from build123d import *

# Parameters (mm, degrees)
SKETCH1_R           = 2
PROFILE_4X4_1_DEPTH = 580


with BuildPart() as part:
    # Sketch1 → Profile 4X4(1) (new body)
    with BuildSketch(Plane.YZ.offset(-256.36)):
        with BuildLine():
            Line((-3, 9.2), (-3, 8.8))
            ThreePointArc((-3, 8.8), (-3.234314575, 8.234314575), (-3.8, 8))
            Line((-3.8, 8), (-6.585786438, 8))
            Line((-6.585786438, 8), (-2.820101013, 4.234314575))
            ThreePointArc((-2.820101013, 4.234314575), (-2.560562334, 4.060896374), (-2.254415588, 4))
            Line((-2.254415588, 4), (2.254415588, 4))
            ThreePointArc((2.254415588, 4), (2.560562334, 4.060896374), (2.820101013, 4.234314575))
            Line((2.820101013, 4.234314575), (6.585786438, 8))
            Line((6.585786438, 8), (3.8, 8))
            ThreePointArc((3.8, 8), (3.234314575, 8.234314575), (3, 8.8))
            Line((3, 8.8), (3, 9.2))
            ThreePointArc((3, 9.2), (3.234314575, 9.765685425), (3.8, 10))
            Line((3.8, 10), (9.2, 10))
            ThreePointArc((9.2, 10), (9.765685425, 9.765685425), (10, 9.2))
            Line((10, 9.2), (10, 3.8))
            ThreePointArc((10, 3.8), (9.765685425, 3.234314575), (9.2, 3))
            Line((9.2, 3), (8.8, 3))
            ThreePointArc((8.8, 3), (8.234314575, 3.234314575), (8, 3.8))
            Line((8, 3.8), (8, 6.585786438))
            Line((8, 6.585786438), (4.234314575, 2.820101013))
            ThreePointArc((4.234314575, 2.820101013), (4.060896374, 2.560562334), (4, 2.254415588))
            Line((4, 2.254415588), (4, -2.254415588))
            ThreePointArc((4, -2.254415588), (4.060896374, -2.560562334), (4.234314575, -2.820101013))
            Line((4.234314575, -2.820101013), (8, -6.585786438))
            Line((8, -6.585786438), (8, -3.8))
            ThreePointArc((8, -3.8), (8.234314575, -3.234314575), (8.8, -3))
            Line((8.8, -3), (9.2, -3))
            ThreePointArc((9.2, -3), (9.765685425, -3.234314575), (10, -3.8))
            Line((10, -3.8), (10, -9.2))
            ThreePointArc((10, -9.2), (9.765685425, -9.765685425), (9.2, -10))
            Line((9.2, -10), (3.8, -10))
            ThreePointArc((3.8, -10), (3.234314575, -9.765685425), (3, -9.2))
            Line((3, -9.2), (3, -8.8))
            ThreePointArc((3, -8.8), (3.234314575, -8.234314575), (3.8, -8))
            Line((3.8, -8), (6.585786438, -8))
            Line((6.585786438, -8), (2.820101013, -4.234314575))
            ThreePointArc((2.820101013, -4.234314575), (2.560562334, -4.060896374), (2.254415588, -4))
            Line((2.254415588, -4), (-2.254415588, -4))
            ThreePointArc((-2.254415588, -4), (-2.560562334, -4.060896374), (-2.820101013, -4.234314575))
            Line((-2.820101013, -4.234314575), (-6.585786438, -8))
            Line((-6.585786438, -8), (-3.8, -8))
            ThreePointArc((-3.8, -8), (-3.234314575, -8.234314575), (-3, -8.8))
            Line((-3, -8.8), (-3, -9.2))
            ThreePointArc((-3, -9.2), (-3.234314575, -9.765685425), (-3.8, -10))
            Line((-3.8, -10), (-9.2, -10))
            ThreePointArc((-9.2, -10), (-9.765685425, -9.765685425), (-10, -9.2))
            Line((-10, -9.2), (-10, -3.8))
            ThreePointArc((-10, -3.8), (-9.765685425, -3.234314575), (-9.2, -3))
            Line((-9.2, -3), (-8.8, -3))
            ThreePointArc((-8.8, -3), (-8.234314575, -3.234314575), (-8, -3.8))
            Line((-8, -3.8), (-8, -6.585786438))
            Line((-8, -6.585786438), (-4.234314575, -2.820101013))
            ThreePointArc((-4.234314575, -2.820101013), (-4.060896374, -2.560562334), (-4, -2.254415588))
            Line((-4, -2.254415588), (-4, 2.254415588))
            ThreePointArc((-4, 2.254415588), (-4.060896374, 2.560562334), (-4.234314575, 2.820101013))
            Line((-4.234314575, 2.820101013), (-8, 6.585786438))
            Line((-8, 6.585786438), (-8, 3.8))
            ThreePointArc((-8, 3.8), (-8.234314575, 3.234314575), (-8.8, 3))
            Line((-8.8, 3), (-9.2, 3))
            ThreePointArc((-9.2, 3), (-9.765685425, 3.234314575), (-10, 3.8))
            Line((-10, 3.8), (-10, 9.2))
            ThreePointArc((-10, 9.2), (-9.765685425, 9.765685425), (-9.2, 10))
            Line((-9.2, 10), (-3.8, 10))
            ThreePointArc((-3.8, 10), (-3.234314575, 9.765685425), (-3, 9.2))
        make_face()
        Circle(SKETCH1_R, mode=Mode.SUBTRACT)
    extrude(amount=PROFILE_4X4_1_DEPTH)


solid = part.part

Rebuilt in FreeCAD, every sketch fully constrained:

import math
import FreeCAD as App
import Part
import Sketcher

doc = App.newDocument("Part")
body = doc.addObject("PartDesign::Body", "Body")

sketch1 = doc.addObject("Sketcher::SketchObject", "Sketch")
body.addObject(sketch1)
sketch1.AttachmentSupport = (doc.YZ_Plane, [""])
sketch1.MapMode = "FlatFace"
sketch1.AttachmentOffset = App.Placement(App.Vector(0, 0, -256.36), App.Rotation())
sketch1.addGeometry([
    Part.LineSegment(App.Vector(-3, 8.8, 0), App.Vector(-3, 9.2, 0)),
    Part.ArcOfCircle(Part.Circle(App.Vector(-3.8, 9.2, 0), App.Vector(0, 0, 1), 0.8), math.radians(0), math.radians(90)),
    Part.LineSegment(App.Vector(-3.8, 10, 0), App.Vector(-9.2, 10, 0)),
    Part.ArcOfCircle(Part.Circle(App.Vector(-9.2, 9.2, 0), App.Vector(0, 0, 1), 0.8), math.radians(90), math.radians(180)),
    Part.LineSegment(App.Vector(-10, 9.2, 0), App.Vector(-10, 3.8, 0)),
    Part.ArcOfCircle(Part.Circle(App.Vector(-9.2, 3.8, 0), App.Vector(0, 0, 1), 0.8), math.radians(180), math.radians(270)),
    Part.LineSegment(App.Vector(-9.2, 3, 0), App.Vector(-8.8, 3, 0)),
    Part.ArcOfCircle(Part.Circle(App.Vector(-8.8, 3.8, 0), App.Vector(0, 0, 1), 0.8), math.radians(-90), math.radians(0)),
    Part.LineSegment(App.Vector(-8, 3.8, 0), App.Vector(-8, 6.585786, 0)),
    Part.LineSegment(App.Vector(-8, 6.585786, 0), App.Vector(-4.234315, 2.820101, 0)),
    Part.ArcOfCircle(Part.Circle(App.Vector(-4.8, 2.254416, 0), App.Vector(0, 0, 1), 0.8), math.radians(0), math.radians(45)),
    Part.LineSegment(App.Vector(-4, 2.254416, 0), App.Vector(-4, -2.254416, 0)),
    Part.ArcOfCircle(Part.Circle(App.Vector(-4.8, -2.254416, 0), App.Vector(0, 0, 1), 0.8), math.radians(-45), math.radians(0)),
    Part.LineSegment(App.Vector(-4.234315, -2.820101, 0), App.Vector(-8, -6.585786, 0)),
    Part.LineSegment(App.Vector(-8, -6.585786, 0), App.Vector(-8, -3.8, 0)),
    Part.ArcOfCircle(Part.Circle(App.Vector(-8.8, -3.8, 0), App.Vector(0, 0, 1), 0.8), math.radians(0), math.radians(90)),
    Part.LineSegment(App.Vector(-8.8, -3, 0), App.Vector(-9.2, -3, 0)),
    Part.ArcOfCircle(Part.Circle(App.Vector(-9.2, -3.8, 0), App.Vector(0, 0, 1), 0.8), math.radians(90), math.radians(180)),
    Part.LineSegment(App.Vector(-10, -3.8, 0), App.Vector(-10, -9.2, 0)),
    Part.ArcOfCircle(Part.Circle(App.Vector(-9.2, -9.2, 0), App.Vector(0, 0, 1), 0.8), math.radians(180), math.radians(270)),
    Part.LineSegment(App.Vector(-9.2, -10, 0), App.Vector(-3.8, -10, 0)),
    Part.ArcOfCircle(Part.Circle(App.Vector(-3.8, -9.2, 0), App.Vector(0, 0, 1), 0.8), math.radians(-90), math.radians(0)),
    Part.LineSegment(App.Vector(-3, -9.2, 0), App.Vector(-3, -8.8, 0)),
    Part.ArcOfCircle(Part.Circle(App.Vector(-3.8, -8.8, 0), App.Vector(0, 0, 1), 0.8), math.radians(0), math.radians(90)),
    Part.LineSegment(App.Vector(-3.8, -8, 0), App.Vector(-6.585786, -8, 0)),
    Part.LineSegment(App.Vector(-6.585786, -8, 0), App.Vector(-2.820101, -4.234315, 0)),
    Part.ArcOfCircle(Part.Circle(App.Vector(-2.254416, -4.8, 0), App.Vector(0, 0, 1), 0.8), math.radians(90), math.radians(135)),
    Part.LineSegment(App.Vector(-2.254416, -4, 0), App.Vector(2.254416, -4, 0)),
    Part.ArcOfCircle(Part.Circle(App.Vector(2.254416, -4.8, 0), App.Vector(0, 0, 1), 0.8), math.radians(45), math.radians(90)),
    Part.LineSegment(App.Vector(2.820101, -4.234315, 0), App.Vector(6.585786, -8, 0)),
    Part.LineSegment(App.Vector(6.585786, -8, 0), App.Vector(3.8, -8, 0)),
    Part.ArcOfCircle(Part.Circle(App.Vector(3.8, -8.8, 0), App.Vector(0, 0, 1), 0.8), math.radians(90), math.radians(180)),
    Part.LineSegment(App.Vector(3, -8.8, 0), App.Vector(3, -9.2, 0)),
    Part.ArcOfCircle(Part.Circle(App.Vector(3.8, -9.2, 0), App.Vector(0, 0, 1), 0.8), math.radians(180), math.radians(270)),
    Part.LineSegment(App.Vector(3.8, -10, 0), App.Vector(9.2, -10, 0)),
    Part.ArcOfCircle(Part.Circle(App.Vector(9.2, -9.2, 0), App.Vector(0, 0, 1), 0.8), math.radians(-90), math.radians(0)),
    Part.LineSegment(App.Vector(10, -9.2, 0), App.Vector(10, -3.8, 0)),
    Part.ArcOfCircle(Part.Circle(App.Vector(9.2, -3.8, 0), App.Vector(0, 0, 1), 0.8), math.radians(0), math.radians(90)),
    Part.LineSegment(App.Vector(9.2, -3, 0), App.Vector(8.8, -3, 0)),
    Part.ArcOfCircle(Part.Circle(App.Vector(8.8, -3.8, 0), App.Vector(0, 0, 1), 0.8), math.radians(90), math.radians(180)),
    Part.LineSegment(App.Vector(8, -3.8, 0), App.Vector(8, -6.585786, 0)),
    Part.LineSegment(App.Vector(8, -6.585786, 0), App.Vector(4.234315, -2.820101, 0)),
    Part.ArcOfCircle(Part.Circle(App.Vector(4.8, -2.254416, 0), App.Vector(0, 0, 1), 0.8), math.radians(180), math.radians(225)),
    Part.LineSegment(App.Vector(4, -2.254416, 0), App.Vector(4, 2.254416, 0)),
    Part.ArcOfCircle(Part.Circle(App.Vector(4.8, 2.254416, 0), App.Vector(0, 0, 1), 0.8), math.radians(135), math.radians(180)),
    Part.LineSegment(App.Vector(4.234315, 2.820101, 0), App.Vector(8, 6.585786, 0)),
    Part.LineSegment(App.Vector(8, 6.585786, 0), App.Vector(8, 3.8, 0)),
    Part.ArcOfCircle(Part.Circle(App.Vector(8.8, 3.8, 0), App.Vector(0, 0, 1), 0.8), math.radians(180), math.radians(270)),
    Part.LineSegment(App.Vector(8.8, 3, 0), App.Vector(9.2, 3, 0)),
    Part.ArcOfCircle(Part.Circle(App.Vector(9.2, 3.8, 0), App.Vector(0, 0, 1), 0.8), math.radians(-90), math.radians(0)),
    Part.LineSegment(App.Vector(10, 3.8, 0), App.Vector(10, 9.2, 0)),
    Part.ArcOfCircle(Part.Circle(App.Vector(9.2, 9.2, 0), App.Vector(0, 0, 1), 0.8), math.radians(0), math.radians(90)),
    Part.LineSegment(App.Vector(9.2, 10, 0), App.Vector(3.8, 10, 0)),
    Part.ArcOfCircle(Part.Circle(App.Vector(3.8, 9.2, 0), App.Vector(0, 0, 1), 0.8), math.radians(90), math.radians(180)),
    Part.LineSegment(App.Vector(3, 9.2, 0), App.Vector(3, 8.8, 0)),
    Part.ArcOfCircle(Part.Circle(App.Vector(3.8, 8.8, 0), App.Vector(0, 0, 1), 0.8), math.radians(180), math.radians(270)),
    Part.LineSegment(App.Vector(3.8, 8, 0), App.Vector(6.585786, 8, 0)),
    Part.LineSegment(App.Vector(6.585786, 8, 0), App.Vector(2.820101, 4.234315, 0)),
    Part.ArcOfCircle(Part.Circle(App.Vector(2.254416, 4.8, 0), App.Vector(0, 0, 1), 0.8), math.radians(-90), math.radians(-45)),
    Part.LineSegment(App.Vector(2.254416, 4, 0), App.Vector(-2.254416, 4, 0)),
    Part.ArcOfCircle(Part.Circle(App.Vector(-2.254416, 4.8, 0), App.Vector(0, 0, 1), 0.8), math.radians(-135), math.radians(-90)),
    Part.LineSegment(App.Vector(-2.820101, 4.234315, 0), App.Vector(-6.585786, 8, 0)),
    Part.LineSegment(App.Vector(-6.585786, 8, 0), App.Vector(-3.8, 8, 0)),
    Part.ArcOfCircle(Part.Circle(App.Vector(-3.8, 8.8, 0), App.Vector(0, 0, 1), 0.8), math.radians(-90), math.radians(0)),
    Part.Circle(App.Vector(0, 0, 0), App.Vector(0, 0, 1), 2),
], False)
sketch1.addConstraint([
    Sketcher.Constraint("Tangent", 0, 2, 1, 1),
    Sketcher.Constraint("Tangent", 1, 2, 2, 1),
    Sketcher.Constraint("Tangent", 2, 2, 3, 1),
    Sketcher.Constraint("Tangent", 3, 2, 4, 1),
    Sketcher.Constraint("Tangent", 4, 2, 5, 1),
    Sketcher.Constraint("Tangent", 5, 2, 6, 1),
    Sketcher.Constraint("Tangent", 6, 2, 7, 1),
    Sketcher.Constraint("Tangent", 7, 2, 8, 1),
    Sketcher.Constraint("Coincident", 8, 2, 9, 1),
    Sketcher.Constraint("Tangent", 9, 2, 10, 2),
    Sketcher.Constraint("Tangent", 10, 1, 11, 1),
    Sketcher.Constraint("Tangent", 11, 2, 12, 2),
    Sketcher.Constraint("Tangent", 12, 1, 13, 1),
    Sketcher.Constraint("Coincident", 13, 2, 14, 1),
    Sketcher.Constraint("Tangent", 14, 2, 15, 1),
    Sketcher.Constraint("Tangent", 15, 2, 16, 1),
    Sketcher.Constraint("Tangent", 16, 2, 17, 1),
    Sketcher.Constraint("Tangent", 17, 2, 18, 1),
    Sketcher.Constraint("Tangent", 18, 2, 19, 1),
    Sketcher.Constraint("Tangent", 19, 2, 20, 1),
    Sketcher.Constraint("Tangent", 20, 2, 21, 1),
    Sketcher.Constraint("Tangent", 21, 2, 22, 1),
    Sketcher.Constraint("Tangent", 22, 2, 23, 1),
    Sketcher.Constraint("Tangent", 23, 2, 24, 1),
    Sketcher.Constraint("Coincident", 24, 2, 25, 1),
    Sketcher.Constraint("Tangent", 25, 2, 26, 2),
    Sketcher.Constraint("Tangent", 26, 1, 27, 1),
    Sketcher.Constraint("Tangent", 27, 2, 28, 2),
    Sketcher.Constraint("Tangent", 28, 1, 29, 1),
    Sketcher.Constraint("Coincident", 29, 2, 30, 1),
    Sketcher.Constraint("Tangent", 30, 2, 31, 1),
    Sketcher.Constraint("Tangent", 31, 2, 32, 1),
    Sketcher.Constraint("Tangent", 32, 2, 33, 1),
    Sketcher.Constraint("Tangent", 33, 2, 34, 1),
    Sketcher.Constraint("Tangent", 34, 2, 35, 1),
    Sketcher.Constraint("Tangent", 35, 2, 36, 1),
    Sketcher.Constraint("Tangent", 36, 2, 37, 1),
    Sketcher.Constraint("Tangent", 37, 2, 38, 1),
    Sketcher.Constraint("Tangent", 38, 2, 39, 1),
    Sketcher.Constraint("Tangent", 39, 2, 40, 1),
    Sketcher.Constraint("Coincident", 40, 2, 41, 1),
    Sketcher.Constraint("Tangent", 41, 2, 42, 2),
    Sketcher.Constraint("Tangent", 42, 1, 43, 1),
    Sketcher.Constraint("Tangent", 43, 2, 44, 2),
    Sketcher.Constraint("Tangent", 44, 1, 45, 1),
    Sketcher.Constraint("Coincident", 45, 2, 46, 1),
    Sketcher.Constraint("Tangent", 46, 2, 47, 1),
    Sketcher.Constraint("Tangent", 47, 2, 48, 1),
    Sketcher.Constraint("Tangent", 48, 2, 49, 1),
    Sketcher.Constraint("Tangent", 49, 2, 50, 1),
    Sketcher.Constraint("Tangent", 50, 2, 51, 1),
    Sketcher.Constraint("Tangent", 51, 2, 52, 1),
    Sketcher.Constraint("Tangent", 52, 2, 53, 1),
    Sketcher.Constraint("Tangent", 53, 2, 54, 1),
    Sketcher.Constraint("Tangent", 54, 2, 55, 1),
    Sketcher.Constraint("Tangent", 55, 2, 56, 1),
    Sketcher.Constraint("Coincident", 56, 2, 57, 1),
    Sketcher.Constraint("Tangent", 57, 2, 58, 2),
    Sketcher.Constraint("Tangent", 58, 1, 59, 1),
    Sketcher.Constraint("Tangent", 59, 2, 60, 2),
    Sketcher.Constraint("Tangent", 60, 1, 61, 1),
    Sketcher.Constraint("Coincident", 61, 2, 62, 1),
    Sketcher.Constraint("Tangent", 62, 2, 63, 1),
    Sketcher.Constraint("Tangent", 63, 2, 0, 1),
    Sketcher.Constraint("Vertical", 0),
    Sketcher.Constraint("Horizontal", 2),
    Sketcher.Constraint("Vertical", 4),
    Sketcher.Constraint("Horizontal", 6),
    Sketcher.Constraint("Vertical", 8),
    Sketcher.Constraint("Vertical", 11),
    Sketcher.Constraint("Vertical", 14),
    Sketcher.Constraint("Horizontal", 16),
    Sketcher.Constraint("Vertical", 18),
    Sketcher.Constraint("Horizontal", 20),
    Sketcher.Constraint("Vertical", 22),
    Sketcher.Constraint("Horizontal", 24),
    Sketcher.Constraint("Horizontal", 27),
    Sketcher.Constraint("Horizontal", 30),
    Sketcher.Constraint("Vertical", 32),
    Sketcher.Constraint("Horizontal", 34),
    Sketcher.Constraint("Vertical", 36),
    Sketcher.Constraint("Horizontal", 38),
    Sketcher.Constraint("Vertical", 40),
    Sketcher.Constraint("Vertical", 43),
    Sketcher.Constraint("Vertical", 46),
    Sketcher.Constraint("Horizontal", 48),
    Sketcher.Constraint("Vertical", 50),
    Sketcher.Constraint("Horizontal", 52),
    Sketcher.Constraint("Vertical", 54),
    Sketcher.Constraint("Horizontal", 56),
    Sketcher.Constraint("Horizontal", 59),
    Sketcher.Constraint("Horizontal", 62),
    Sketcher.Constraint("Coincident", 64, 3, -1, 1),
    Sketcher.Constraint("Equal", 1, 3),
    Sketcher.Constraint("Equal", 3, 5),
    Sketcher.Constraint("Equal", 5, 7),
    Sketcher.Constraint("Equal", 7, 10),
    Sketcher.Constraint("Equal", 10, 12),
    Sketcher.Constraint("Equal", 12, 15),
    Sketcher.Constraint("Equal", 15, 17),
    Sketcher.Constraint("Equal", 17, 19),
    Sketcher.Constraint("Equal", 19, 21),
    Sketcher.Constraint("Equal", 21, 23),
    Sketcher.Constraint("Equal", 23, 26),
    Sketcher.Constraint("Equal", 26, 28),
    Sketcher.Constraint("Equal", 28, 31),
    Sketcher.Constraint("Equal", 31, 33),
    Sketcher.Constraint("Equal", 33, 35),
    Sketcher.Constraint("Equal", 35, 37),
    Sketcher.Constraint("Equal", 37, 39),
    Sketcher.Constraint("Equal", 39, 42),
    Sketcher.Constraint("Equal", 42, 44),
    Sketcher.Constraint("Equal", 44, 47),
    Sketcher.Constraint("Equal", 47, 49),
    Sketcher.Constraint("Equal", 49, 51),
    Sketcher.Constraint("Equal", 51, 53),
    Sketcher.Constraint("Equal", 53, 55),
    Sketcher.Constraint("Equal", 55, 58),
    Sketcher.Constraint("Equal", 58, 60),
    Sketcher.Constraint("Equal", 60, 63),
    Sketcher.Constraint("Symmetric", 1, 3, 33, 3, -1, 1),
    Sketcher.Constraint("Symmetric", 5, 3, 37, 3, -1, 1),
    Sketcher.Constraint("Symmetric", 10, 3, 42, 3, -1, 1),
    Sketcher.Constraint("Symmetric", 15, 3, 47, 3, -1, 1),
    Sketcher.Constraint("Symmetric", 19, 3, 51, 3, -1, 1),
    Sketcher.Constraint("Symmetric", 23, 3, 55, 3, -1, 1),
    Sketcher.Constraint("Symmetric", 26, 3, 58, 3, -1, 1),
    Sketcher.Constraint("Symmetric", 8, 2, 40, 2, -1, 1),
    Sketcher.Constraint("Symmetric", 12, 1, 44, 1, -1, 1),
    Sketcher.Constraint("Symmetric", 28, 1, 60, 1, -1, 1),
    Sketcher.Constraint("Symmetric", 23, 3, 31, 3, -2),
    Sketcher.Constraint("Symmetric", 19, 3, 35, 3, -2),
    Sketcher.Constraint("Symmetric", 15, 3, 39, 3, -2),
    Sketcher.Constraint("Symmetric", 25, 2, 28, 1, -2),
    Sketcher.Constraint("Symmetric", 12, 1, 41, 2, -2),
    Sketcher.Constraint("Symmetric", 56, 2, 61, 2, -2),
    Sketcher.Constraint("Perpendicular", 9, 13),
    Sketcher.Constraint("Parallel", 13, 25),
    Sketcher.Constraint("Equal", 48, 0),
    Sketcher.Constraint("Equal", 52, 4),
    Sketcher.Constraint("Equal", 62, 8),
    Sketcher.Constraint("Equal", 59, 11),
    Sketcher.Constraint("Equal", 13, 25),
    Sketcher.Constraint("Diameter", 64, 4.0),
    Sketcher.Constraint("Radius", 1, 0.8),
    Sketcher.Constraint("DistanceX", 2, 2, 2, 1, 5.4),
    Sketcher.Constraint("DistanceX", 6, 1, 6, 2, 0.4),
    Sketcher.Constraint("DistanceX", 0, 2, -1, 1, 3.0),
    Sketcher.Constraint("DistanceX", 10, 1, -1, 1, 4.0),
    Sketcher.Constraint("DistanceX", 27, 1, 27, 2, 4.508831),
])
pad1 = doc.addObject("PartDesign::Pad", "Pad")
body.addObject(pad1)
pad1.Profile = sketch1
pad1.Length = 580

doc.recompute()
